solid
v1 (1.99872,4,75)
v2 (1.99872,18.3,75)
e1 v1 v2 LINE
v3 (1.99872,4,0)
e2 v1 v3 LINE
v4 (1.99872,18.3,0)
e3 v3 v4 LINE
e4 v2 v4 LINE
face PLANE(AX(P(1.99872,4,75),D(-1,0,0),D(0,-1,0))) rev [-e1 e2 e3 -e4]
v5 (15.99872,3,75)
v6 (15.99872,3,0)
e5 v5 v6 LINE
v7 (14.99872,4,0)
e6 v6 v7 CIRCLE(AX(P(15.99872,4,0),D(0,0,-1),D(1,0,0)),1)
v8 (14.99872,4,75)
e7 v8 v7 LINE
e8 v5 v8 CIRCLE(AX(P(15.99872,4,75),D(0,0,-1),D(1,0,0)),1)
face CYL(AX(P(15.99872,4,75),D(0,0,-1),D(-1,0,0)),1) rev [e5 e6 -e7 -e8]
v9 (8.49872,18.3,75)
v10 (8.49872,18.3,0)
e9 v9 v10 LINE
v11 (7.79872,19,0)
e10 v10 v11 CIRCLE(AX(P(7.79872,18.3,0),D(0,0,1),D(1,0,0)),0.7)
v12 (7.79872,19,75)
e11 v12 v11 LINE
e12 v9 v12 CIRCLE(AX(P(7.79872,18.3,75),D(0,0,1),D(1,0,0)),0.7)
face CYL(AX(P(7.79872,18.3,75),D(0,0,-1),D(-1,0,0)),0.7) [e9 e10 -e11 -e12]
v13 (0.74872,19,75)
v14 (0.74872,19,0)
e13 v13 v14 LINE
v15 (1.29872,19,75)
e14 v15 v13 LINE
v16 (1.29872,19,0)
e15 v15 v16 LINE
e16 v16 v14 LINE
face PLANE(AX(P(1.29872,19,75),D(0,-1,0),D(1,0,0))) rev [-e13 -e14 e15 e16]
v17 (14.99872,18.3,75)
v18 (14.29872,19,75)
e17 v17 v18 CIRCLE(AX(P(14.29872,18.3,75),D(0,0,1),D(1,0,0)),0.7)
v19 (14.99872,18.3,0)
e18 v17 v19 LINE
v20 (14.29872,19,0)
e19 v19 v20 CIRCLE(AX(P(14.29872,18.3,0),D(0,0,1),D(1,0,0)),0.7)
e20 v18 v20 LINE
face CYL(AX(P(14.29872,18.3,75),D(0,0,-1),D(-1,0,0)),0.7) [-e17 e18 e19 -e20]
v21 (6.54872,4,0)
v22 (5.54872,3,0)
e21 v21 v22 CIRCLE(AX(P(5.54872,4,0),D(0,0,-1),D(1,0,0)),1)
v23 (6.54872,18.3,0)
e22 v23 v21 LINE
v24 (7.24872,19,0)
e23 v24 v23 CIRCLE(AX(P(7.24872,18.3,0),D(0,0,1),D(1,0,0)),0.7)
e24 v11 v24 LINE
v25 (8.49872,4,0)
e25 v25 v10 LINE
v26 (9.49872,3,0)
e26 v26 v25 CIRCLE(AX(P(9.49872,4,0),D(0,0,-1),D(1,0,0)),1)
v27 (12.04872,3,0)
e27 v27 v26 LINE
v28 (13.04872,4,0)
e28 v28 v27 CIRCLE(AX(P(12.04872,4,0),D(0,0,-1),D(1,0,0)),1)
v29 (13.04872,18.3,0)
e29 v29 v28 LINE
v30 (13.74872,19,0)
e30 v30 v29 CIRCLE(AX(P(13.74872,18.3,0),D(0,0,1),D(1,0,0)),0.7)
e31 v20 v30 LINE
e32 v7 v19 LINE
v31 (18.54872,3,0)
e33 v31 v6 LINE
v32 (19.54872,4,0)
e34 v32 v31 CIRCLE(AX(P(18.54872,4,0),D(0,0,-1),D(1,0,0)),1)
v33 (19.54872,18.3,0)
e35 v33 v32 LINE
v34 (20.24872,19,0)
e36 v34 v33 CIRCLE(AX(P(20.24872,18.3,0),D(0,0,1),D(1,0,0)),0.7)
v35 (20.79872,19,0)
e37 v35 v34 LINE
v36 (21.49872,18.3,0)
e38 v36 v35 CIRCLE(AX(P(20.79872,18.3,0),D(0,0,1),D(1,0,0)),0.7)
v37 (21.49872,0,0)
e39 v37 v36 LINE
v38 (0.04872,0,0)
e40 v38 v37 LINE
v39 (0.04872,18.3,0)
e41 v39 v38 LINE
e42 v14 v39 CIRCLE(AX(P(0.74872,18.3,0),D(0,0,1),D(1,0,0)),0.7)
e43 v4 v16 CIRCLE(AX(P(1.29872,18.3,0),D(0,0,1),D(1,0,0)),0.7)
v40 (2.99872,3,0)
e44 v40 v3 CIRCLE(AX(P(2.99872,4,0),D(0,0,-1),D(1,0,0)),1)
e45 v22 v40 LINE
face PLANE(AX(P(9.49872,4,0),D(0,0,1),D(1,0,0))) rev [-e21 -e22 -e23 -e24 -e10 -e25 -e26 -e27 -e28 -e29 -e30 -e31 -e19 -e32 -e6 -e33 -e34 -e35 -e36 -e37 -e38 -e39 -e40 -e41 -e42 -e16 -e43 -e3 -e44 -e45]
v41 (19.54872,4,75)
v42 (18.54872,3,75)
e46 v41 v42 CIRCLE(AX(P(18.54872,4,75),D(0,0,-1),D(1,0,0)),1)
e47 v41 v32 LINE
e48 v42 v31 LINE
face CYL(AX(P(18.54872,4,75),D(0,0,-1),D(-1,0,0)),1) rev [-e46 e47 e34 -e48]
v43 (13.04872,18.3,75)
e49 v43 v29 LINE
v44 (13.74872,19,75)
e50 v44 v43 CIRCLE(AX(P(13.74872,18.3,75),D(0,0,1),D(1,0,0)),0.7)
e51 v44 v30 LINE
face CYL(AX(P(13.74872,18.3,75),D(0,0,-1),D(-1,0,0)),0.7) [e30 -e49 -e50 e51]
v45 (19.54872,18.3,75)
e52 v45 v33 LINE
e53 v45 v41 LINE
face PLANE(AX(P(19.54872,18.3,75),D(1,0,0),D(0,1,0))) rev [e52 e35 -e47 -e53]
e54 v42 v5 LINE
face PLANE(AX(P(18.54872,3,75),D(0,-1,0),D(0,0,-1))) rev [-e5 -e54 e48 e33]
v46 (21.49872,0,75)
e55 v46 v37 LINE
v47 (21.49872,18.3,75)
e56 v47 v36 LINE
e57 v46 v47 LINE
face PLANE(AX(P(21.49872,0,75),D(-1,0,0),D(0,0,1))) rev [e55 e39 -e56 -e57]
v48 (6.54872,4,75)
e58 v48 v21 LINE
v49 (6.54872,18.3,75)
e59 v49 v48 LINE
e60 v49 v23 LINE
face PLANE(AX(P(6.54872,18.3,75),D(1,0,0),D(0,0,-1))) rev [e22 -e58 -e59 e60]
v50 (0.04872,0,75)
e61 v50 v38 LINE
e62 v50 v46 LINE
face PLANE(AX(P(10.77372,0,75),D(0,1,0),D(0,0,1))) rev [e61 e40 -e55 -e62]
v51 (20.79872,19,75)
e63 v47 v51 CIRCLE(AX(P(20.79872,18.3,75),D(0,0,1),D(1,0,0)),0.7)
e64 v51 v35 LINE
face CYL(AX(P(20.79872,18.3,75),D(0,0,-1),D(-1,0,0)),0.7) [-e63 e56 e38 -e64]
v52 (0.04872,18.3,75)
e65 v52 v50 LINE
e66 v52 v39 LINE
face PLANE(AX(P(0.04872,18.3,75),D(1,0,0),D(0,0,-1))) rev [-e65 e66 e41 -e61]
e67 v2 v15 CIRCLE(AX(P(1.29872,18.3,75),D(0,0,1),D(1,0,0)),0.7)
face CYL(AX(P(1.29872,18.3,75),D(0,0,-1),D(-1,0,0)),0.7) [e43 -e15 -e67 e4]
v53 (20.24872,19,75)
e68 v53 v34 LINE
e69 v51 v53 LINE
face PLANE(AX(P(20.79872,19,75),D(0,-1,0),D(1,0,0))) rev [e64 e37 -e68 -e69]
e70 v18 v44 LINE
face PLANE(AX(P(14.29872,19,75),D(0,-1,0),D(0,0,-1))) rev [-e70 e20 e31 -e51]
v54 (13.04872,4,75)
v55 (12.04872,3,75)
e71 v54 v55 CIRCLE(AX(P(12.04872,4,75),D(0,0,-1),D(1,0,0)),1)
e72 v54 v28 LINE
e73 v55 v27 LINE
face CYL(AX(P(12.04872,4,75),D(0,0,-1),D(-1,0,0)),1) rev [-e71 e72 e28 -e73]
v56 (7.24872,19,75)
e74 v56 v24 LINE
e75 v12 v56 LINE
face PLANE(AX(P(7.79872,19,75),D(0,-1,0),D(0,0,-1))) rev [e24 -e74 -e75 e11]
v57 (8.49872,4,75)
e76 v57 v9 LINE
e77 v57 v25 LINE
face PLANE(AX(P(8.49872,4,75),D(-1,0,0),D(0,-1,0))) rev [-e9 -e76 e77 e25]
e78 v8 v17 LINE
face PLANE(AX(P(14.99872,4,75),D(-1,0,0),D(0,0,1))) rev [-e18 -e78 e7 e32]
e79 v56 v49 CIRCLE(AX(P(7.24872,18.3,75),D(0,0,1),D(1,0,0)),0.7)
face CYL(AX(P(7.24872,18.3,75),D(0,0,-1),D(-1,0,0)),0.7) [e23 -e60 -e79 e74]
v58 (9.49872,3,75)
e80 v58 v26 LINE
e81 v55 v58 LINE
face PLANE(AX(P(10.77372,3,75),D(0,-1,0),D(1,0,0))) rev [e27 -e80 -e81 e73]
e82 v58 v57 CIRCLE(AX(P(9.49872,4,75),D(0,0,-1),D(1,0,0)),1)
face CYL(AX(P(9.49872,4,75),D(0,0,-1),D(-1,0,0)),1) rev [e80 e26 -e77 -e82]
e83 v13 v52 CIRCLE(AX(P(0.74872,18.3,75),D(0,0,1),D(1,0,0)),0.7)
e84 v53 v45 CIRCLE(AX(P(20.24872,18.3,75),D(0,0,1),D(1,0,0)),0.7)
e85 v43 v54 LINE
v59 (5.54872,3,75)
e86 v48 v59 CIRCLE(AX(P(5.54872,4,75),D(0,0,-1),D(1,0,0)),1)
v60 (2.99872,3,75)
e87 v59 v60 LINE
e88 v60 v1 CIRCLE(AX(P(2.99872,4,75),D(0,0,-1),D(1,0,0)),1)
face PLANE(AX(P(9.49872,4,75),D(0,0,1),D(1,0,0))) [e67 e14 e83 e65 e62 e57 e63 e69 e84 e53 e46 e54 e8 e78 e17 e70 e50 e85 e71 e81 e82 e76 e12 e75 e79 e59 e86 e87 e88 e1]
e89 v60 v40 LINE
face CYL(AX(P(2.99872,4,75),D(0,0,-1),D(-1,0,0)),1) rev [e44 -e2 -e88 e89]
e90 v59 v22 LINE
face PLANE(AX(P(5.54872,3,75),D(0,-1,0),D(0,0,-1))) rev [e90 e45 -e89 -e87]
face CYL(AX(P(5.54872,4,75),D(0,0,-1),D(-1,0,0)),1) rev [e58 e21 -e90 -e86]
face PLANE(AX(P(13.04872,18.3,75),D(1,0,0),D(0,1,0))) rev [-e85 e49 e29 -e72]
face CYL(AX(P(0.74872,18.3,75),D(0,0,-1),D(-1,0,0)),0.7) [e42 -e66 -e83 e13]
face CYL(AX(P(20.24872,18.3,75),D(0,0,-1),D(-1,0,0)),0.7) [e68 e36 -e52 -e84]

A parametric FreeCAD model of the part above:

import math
import FreeCAD as App
import Part
import Sketcher

doc = App.newDocument("Part")
body = doc.addObject("PartDesign::Body", "Body")

sketch1 = body.newObject("Sketcher::SketchObject", "Sketch")
sketch1.AttachmentSupport = (doc.getObject("XY_Plane"), [""])
sketch1.MapMode = "FlatFace"
sketch1.addGeometry([
    Part.LineSegment(App.Vector(12.04872, 3, 0), App.Vector(9.49872, 3, 0)),
    Part.ArcOfCircle(Part.Circle(App.Vector(9.49872, 4, 0), App.Vector(0, 0, 1), 1), math.radians(-180), math.radians(-90)),
    Part.LineSegment(App.Vector(8.49872, 4, 0), App.Vector(8.49872, 18.3, 0)),
    Part.ArcOfCircle(Part.Circle(App.Vector(7.79872, 18.3, 0), App.Vector(0, 0, 1), 0.7), math.radians(0), math.radians(90)),
    Part.LineSegment(App.Vector(7.79872, 19, 0), App.Vector(7.24872, 19, 0)),
    Part.ArcOfCircle(Part.Circle(App.Vector(7.24872, 18.3, 0), App.Vector(0, 0, 1), 0.7), math.radians(90), math.radians(180)),
    Part.LineSegment(App.Vector(6.54872, 18.3, 0), App.Vector(6.54872, 4, 0)),
    Part.ArcOfCircle(Part.Circle(App.Vector(5.54872, 4, 0), App.Vector(0, 0, 1), 1), math.radians(-90), math.radians(0)),
    Part.LineSegment(App.Vector(5.54872, 3, 0), App.Vector(2.99872, 3, 0)),
    Part.ArcOfCircle(Part.Circle(App.Vector(2.99872, 4, 0), App.Vector(0, 0, 1), 1), math.radians(-180), math.radians(-90)),
    Part.LineSegment(App.Vector(1.99872, 4, 0), App.Vector(1.99872, 18.3, 0)),
    Part.ArcOfCircle(Part.Circle(App.Vector(1.29872, 18.3, 0), App.Vector(0, 0, 1), 0.7), math.radians(0), math.radians(90)),
    Part.LineSegment(App.Vector(1.29872, 19, 0), App.Vector(0.74872, 19, 0)),
    Part.ArcOfCircle(Part.Circle(App.Vector(0.74872, 18.3, 0), App.Vector(0, 0, 1), 0.7), math.radians(90), math.radians(180)),
    Part.LineSegment(App.Vector(0.04872, 18.3, 0), App.Vector(0.04872, 0, 0)),
    Part.LineSegment(App.Vector(0.04872, 0, 0), App.Vector(21.49872, 0, 0)),
    Part.LineSegment(App.Vector(21.49872, 0, 0), App.Vector(21.49872, 18.3, 0)),
    Part.ArcOfCircle(Part.Circle(App.Vector(20.79872, 18.3, 0), App.Vector(0, 0, 1), 0.7), math.radians(0), math.radians(90)),
    Part.LineSegment(App.Vector(20.79872, 19, 0), App.Vector(20.24872, 19, 0)),
    Part.ArcOfCircle(Part.Circle(App.Vector(20.24872, 18.3, 0), App.Vector(0, 0, 1), 0.7), math.radians(90), math.radians(180)),
    Part.LineSegment(App.Vector(19.54872, 18.3, 0), App.Vector(19.54872, 4, 0)),
    Part.ArcOfCircle(Part.Circle(App.Vector(18.54872, 4, 0), App.Vector(0, 0, 1), 1), math.radians(-90), math.radians(0)),
    Part.LineSegment(App.Vector(18.54872, 3, 0), App.Vector(15.99872, 3, 0)),
    Part.ArcOfCircle(Part.Circle(App.Vector(15.99872, 4, 0), App.Vector(0, 0, 1), 1), math.radians(-180), math.radians(-90)),
    Part.LineSegment(App.Vector(14.99872, 4, 0), App.Vector(14.99872, 18.3, 0)),
    Part.ArcOfCircle(Part.Circle(App.Vector(14.29872, 18.3, 0), App.Vector(0, 0, 1), 0.7), math.radians(0), math.radians(90)),
    Part.LineSegment(App.Vector(14.29872, 19, 0), App.Vector(13.74872, 19, 0)),
    Part.ArcOfCircle(Part.Circle(App.Vector(13.74872, 18.3, 0), App.Vector(0, 0, 1), 0.7), math.radians(90), math.radians(180)),
    Part.LineSegment(App.Vector(13.04872, 18.3, 0), App.Vector(13.04872, 4, 0)),
    Part.ArcOfCircle(Part.Circle(App.Vector(12.04872, 4, 0), App.Vector(0, 0, 1), 1), math.radians(-90), math.radians(0)),
], False)
sketch1.addConstraint([
    Sketcher.Constraint("Tangent", 0, 2, 1, 2),
    Sketcher.Constraint("Tangent", 1, 1, 2, 1),
    Sketcher.Constraint("Tangent", 2, 2, 3, 1),
    Sketcher.Constraint("Tangent", 3, 2, 4, 1),
    Sketcher.Constraint("Tangent", 4, 2, 5, 1),
    Sketcher.Constraint("Tangent", 5, 2, 6, 1),
    Sketcher.Constraint("Tangent", 6, 2, 7, 2),
    Sketcher.Constraint("Tangent", 7, 1, 8, 1),
    Sketcher.Constraint("Tangent", 8, 2, 9, 2),
    Sketcher.Constraint("Tangent", 9, 1, 10, 1),
    Sketcher.Constraint("Tangent", 10, 2, 11, 1),
    Sketcher.Constraint("Tangent", 11, 2, 12, 1),
    Sketcher.Constraint("Tangent", 12, 2, 13, 1),
    Sketcher.Constraint("Tangent", 13, 2, 14, 1),
    Sketcher.Constraint("Coincident", 14, 2, 15, 1),
    Sketcher.Constraint("Coincident", 15, 2, 16, 1),
    Sketcher.Constraint("Tangent", 16, 2, 17, 1),
    Sketcher.Constraint("Tangent", 17, 2, 18, 1),
    Sketcher.Constraint("Tangent", 18, 2, 19, 1),
    Sketcher.Constraint("Tangent", 19, 2, 20, 1),
    Sketcher.Constraint("Tangent", 20, 2, 21, 2),
    Sketcher.Constraint("Tangent", 21, 1, 22, 1),
    Sketcher.Constraint("Tangent", 22, 2, 23, 2),
    Sketcher.Constraint("Tangent", 23, 1, 24, 1),
    Sketcher.Constraint("Tangent", 24, 2, 25, 1),
    Sketcher.Constraint("Tangent", 25, 2, 26, 1),
    Sketcher.Constraint("Tangent", 26, 2, 27, 1),
    Sketcher.Constraint("Tangent", 27, 2, 28, 1),
    Sketcher.Constraint("Tangent", 28, 2, 29, 2),
    Sketcher.Constraint("Tangent", 29, 1, 0, 1),
    Sketcher.Constraint("Horizontal", 0),
    Sketcher.Constraint("Vertical", 2),
    Sketcher.Constraint("Horizontal", 4),
    Sketcher.Constraint("Vertical", 6),
    Sketcher.Constraint("Horizontal", 8),
    Sketcher.Constraint("Vertical", 10),
    Sketcher.Constraint("Horizontal", 12),
    Sketcher.Constraint("Vertical", 14),
    Sketcher.Constraint("Horizontal", 15),
    Sketcher.Constraint("Vertical", 16),
    Sketcher.Constraint("Horizontal", 18),
    Sketcher.Constraint("Vertical", 20),
    Sketcher.Constraint("Horizontal", 22),
    Sketcher.Constraint("Vertical", 24),
    Sketcher.Constraint("Horizontal", 26),
    Sketcher.Constraint("Vertical", 28),
    Sketcher.Constraint("Equal", 3, 5),
    Sketcher.Constraint("Equal", 1, 7),
    Sketcher.Constraint("Equal", 7, 9),
    Sketcher.Constraint("Equal", 5, 11),
    Sketcher.Constraint("Equal", 11, 13),
    Sketcher.Constraint("Equal", 13, 17),
    Sketcher.Constraint("Equal", 17, 19),
    Sketcher.Constraint("Equal", 9, 21),
    Sketcher.Constraint("Equal", 21, 23),
    Sketcher.Constraint("Equal", 19, 25),
    Sketcher.Constraint("Equal", 25, 27),
    Sketcher.Constraint("Equal", 23, 29),
    Sketcher.Constraint("PointOnObject", 14, 2, -1),
    Sketcher.Constraint("Horizontal", 1, 3, 7, 3),
    Sketcher.Constraint("Horizontal", 5, 3, 11, 3),
    Sketcher.Constraint("Horizontal", 13, 3, 17, 3),
    Sketcher.Constraint("Horizontal", 9, 3, 21, 3),
    Sketcher.Constraint("Horizontal", 19, 3, 25, 3),
    Sketcher.Constraint("Equal", 0, 8),
    Sketcher.Constraint("Equal", 4, 12),
    Sketcher.Constraint("Equal", 12, 18),
    Sketcher.Constraint("Equal", 8, 22),
    Sketcher.Constraint("Equal", 18, 26),
    Sketcher.Constraint("Radius", 1, 1.0),
    Sketcher.Constraint("Radius", 3, 0.7),
    Sketcher.Constraint("DistanceY", 2, 1, 2, 2, 14.3),
    Sketcher.Constraint("DistanceY", 14, 2, 14, 1, 18.3),
    Sketcher.Constraint("DistanceX", 3, 3, 17, 3, 13.0),
    Sketcher.Constraint("DistanceX", 0, 2, 0, 1, 2.55),
    Sketcher.Constraint("DistanceX", -1, 1, 1, 3, 9.49872),
])
pad1 = body.newObject("PartDesign::Pad", "Pad")
pad1.Profile = sketch1
pad1.Length = 75

doc.recompute()
